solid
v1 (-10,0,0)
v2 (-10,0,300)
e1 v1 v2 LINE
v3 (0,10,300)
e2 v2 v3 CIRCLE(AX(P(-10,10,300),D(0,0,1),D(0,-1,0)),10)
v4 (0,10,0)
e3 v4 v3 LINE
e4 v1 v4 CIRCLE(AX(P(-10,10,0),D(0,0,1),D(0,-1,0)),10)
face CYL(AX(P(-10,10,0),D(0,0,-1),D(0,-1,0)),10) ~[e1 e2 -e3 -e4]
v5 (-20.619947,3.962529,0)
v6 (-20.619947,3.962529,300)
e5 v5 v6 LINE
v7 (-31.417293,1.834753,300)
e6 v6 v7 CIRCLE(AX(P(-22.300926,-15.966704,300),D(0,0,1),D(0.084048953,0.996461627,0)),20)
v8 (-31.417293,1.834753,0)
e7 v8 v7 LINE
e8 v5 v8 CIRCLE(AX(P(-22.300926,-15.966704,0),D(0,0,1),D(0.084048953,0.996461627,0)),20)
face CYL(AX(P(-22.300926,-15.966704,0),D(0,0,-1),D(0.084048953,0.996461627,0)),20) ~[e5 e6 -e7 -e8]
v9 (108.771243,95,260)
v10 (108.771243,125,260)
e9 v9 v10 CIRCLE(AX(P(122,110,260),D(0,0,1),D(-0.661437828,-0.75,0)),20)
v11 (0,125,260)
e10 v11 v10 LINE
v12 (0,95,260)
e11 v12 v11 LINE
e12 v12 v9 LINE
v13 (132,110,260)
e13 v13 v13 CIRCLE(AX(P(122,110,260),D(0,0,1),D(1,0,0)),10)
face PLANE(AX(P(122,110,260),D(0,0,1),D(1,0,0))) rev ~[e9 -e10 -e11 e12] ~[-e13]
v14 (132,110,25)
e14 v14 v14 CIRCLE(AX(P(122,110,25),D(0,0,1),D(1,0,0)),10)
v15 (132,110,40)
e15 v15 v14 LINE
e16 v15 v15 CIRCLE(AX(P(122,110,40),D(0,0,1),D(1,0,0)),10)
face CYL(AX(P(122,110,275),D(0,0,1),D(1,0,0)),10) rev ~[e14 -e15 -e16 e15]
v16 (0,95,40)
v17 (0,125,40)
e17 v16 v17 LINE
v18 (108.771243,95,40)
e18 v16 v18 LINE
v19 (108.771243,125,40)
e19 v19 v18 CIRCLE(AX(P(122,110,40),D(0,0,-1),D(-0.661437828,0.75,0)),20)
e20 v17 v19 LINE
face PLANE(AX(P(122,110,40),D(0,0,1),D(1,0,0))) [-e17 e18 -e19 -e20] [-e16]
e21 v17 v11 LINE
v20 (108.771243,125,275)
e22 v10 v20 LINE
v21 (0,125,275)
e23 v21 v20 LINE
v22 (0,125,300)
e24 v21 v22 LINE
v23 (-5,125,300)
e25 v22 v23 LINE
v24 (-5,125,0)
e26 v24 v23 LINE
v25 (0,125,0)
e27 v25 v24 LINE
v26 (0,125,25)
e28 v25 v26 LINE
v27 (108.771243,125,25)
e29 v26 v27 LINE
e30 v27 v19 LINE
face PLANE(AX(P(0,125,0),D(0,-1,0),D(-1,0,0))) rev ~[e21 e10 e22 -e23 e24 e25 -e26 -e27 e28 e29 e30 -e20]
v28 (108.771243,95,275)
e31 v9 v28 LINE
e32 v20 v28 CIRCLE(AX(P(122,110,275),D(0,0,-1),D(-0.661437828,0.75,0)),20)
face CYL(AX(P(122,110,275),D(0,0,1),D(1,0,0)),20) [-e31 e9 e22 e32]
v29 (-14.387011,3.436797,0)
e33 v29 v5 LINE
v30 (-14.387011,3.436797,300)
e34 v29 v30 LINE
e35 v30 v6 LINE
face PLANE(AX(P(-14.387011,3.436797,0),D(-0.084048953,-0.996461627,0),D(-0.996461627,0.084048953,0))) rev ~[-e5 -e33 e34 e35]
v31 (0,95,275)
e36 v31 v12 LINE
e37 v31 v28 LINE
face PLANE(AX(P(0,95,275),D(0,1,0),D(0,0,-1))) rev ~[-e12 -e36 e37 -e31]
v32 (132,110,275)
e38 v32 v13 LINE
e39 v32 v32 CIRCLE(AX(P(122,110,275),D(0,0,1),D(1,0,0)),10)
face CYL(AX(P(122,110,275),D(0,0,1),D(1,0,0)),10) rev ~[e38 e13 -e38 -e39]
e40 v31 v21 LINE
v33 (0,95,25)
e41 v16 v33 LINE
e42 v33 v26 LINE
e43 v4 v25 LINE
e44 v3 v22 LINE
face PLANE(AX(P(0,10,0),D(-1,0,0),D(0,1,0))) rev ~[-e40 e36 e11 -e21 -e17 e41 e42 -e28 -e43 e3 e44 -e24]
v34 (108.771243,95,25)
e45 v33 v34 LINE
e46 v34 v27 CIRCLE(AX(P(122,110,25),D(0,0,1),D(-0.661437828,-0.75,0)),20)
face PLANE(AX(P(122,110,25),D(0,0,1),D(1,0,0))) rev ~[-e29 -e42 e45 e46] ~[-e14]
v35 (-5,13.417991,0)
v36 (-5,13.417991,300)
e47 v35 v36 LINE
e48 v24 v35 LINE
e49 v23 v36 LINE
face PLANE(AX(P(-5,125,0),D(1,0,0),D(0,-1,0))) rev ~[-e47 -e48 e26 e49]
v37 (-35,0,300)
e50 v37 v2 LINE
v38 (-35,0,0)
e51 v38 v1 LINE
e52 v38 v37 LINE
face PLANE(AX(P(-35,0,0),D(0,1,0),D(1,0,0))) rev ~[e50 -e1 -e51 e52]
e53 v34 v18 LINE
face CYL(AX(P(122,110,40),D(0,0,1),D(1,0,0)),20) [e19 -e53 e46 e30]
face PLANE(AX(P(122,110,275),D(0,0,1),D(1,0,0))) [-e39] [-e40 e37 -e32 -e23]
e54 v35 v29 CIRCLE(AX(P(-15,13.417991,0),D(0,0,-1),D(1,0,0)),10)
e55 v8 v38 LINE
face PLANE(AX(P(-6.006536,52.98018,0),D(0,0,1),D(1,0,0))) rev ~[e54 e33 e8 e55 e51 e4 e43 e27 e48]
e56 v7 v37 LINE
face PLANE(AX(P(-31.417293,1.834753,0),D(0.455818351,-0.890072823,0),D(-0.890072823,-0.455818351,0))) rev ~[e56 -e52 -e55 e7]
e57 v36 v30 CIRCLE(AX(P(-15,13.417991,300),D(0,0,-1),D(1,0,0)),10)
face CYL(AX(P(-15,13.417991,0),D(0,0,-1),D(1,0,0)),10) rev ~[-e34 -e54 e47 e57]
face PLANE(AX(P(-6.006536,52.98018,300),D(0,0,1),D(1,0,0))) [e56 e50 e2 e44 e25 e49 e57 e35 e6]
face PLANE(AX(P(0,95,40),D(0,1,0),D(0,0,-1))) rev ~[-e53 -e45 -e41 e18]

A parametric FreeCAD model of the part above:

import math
import FreeCAD as App
import Part
import Sketcher

V = App.Vector


def add_polygon(sketch, points):
    """Adds a closed chain of lines whose ends are joined by coincident constraints."""
    first, n = sketch.GeometryCount, len(points)
    for a, b in zip(points, points[1:] + points[:1]):
        sketch.addGeometry(Part.LineSegment(App.Vector(*a, 0), App.Vector(*b, 0)), False)
    for i in range(n):
        sketch.addConstraint(Sketcher.Constraint("Coincident", first + i, 2, first + (i + 1) % n, 1))

doc = App.newDocument("Part")
body = doc.addObject("PartDesign::Body", "Body")

sketch1 = body.newObject("Sketcher::SketchObject", "Sketch")
sketch1.AttachmentSupport = (doc.getObject("XY_Plane"), [""])
sketch1.MapMode = "FlatFace"
sketch1.addGeometry([
    Part.LineSegment(V(-5, 125, 0), V(-5, 13.4, 0)),
    Part.ArcOfCircle(Part.Circle(V(-15, 13.4, 0), V(0, 0, 1), 10), math.radians(-86), math.radians(0)),
    Part.LineSegment(V(-14.4, 3.4, 0), V(-20.6, 4, 0)),
    Part.ArcOfCircle(Part.Circle(V(-22.3, -16, 0), V(0, 0, 1), 20), math.radians(85), math.radians(117)),
    Part.LineSegment(V(-31.4, 1.8, 0), V(-35, 0, 0)),
    Part.LineSegment(V(-35, 0, 0), V(-10, 0, 0)),
    Part.ArcOfCircle(Part.Circle(V(-10, 10, 0), V(0, 0, 1), 10), math.radians(-90), math.radians(0)),
    Part.LineSegment(V(0, 10, 0), V(0, 125, 0)),
    Part.LineSegment(V(0, 125, 0), V(-5, 125, 0)),
], False)
sketch1.addConstraint([
    Sketcher.Constraint("Tangent", 0, 2, 1, 2),
    Sketcher.Constraint("Coincident", 1, 1, 2, 1),
    Sketcher.Constraint("Tangent", 2, 2, 3, 1),
    Sketcher.Constraint("Tangent", 3, 2, 4, 1),
    Sketcher.Constraint("Coincident", 4, 2, 5, 1),
    Sketcher.Constraint("Tangent", 5, 2, 6, 1),
    Sketcher.Constraint("Tangent", 6, 2, 7, 1),
    Sketcher.Constraint("Coincident", 7, 2, 8, 1),
    Sketcher.Constraint("Coincident", 8, 2, 0, 1),
    Sketcher.Constraint("Vertical", 0),
    Sketcher.Constraint("Horizontal", 5),
    Sketcher.Constraint("Vertical", 7),
    Sketcher.Constraint("Horizontal", 8),
    Sketcher.Constraint("Equal", 1, 6),
    Sketcher.Constraint("PointOnObject", 4, 2, -1),
    Sketcher.Constraint("PointOnObject", 6, 2, -2),
    Sketcher.Constraint("Radius", 1, 10.0),
    Sketcher.Constraint("Radius", 3, 20.0),
    Sketcher.Constraint("DistanceX", 5, 1, 5, 2, 25.0),
    Sketcher.Constraint("DistanceX", 8, 2, 8, 1, 5.0),
    Sketcher.Constraint("DistanceY", 7, 1, 7, 2, 115.0),
    Sketcher.Constraint("DistanceY", 0, 2, 0, 1, 111.582009),
    Sketcher.Constraint("DistanceY", 3, 3, 1, 1, 19.403501),
    Sketcher.Constraint("Distance", 2, 6.255069),
    Sketcher.Constraint("DistanceX", 1, 1, -1, 1, 14.387011),
])
pad1 = body.newObject("PartDesign::Pad", "Pad")
pad1.Profile = sketch1
pad1.Length = 300

sketch2 = body.newObject("Sketcher::SketchObject", "Sketch001")
sketch2.AttachmentSupport = (doc.getObject("YZ_Plane"), [""])
sketch2.MapMode = "FlatFace"
add_polygon(sketch2, [(125, 275), (95, 275), (95, 260), (125, 260)])
add_polygon(sketch2, [(125, 40), (95, 40), (95, 25), (125, 25)])
sketch2.addConstraint([
    Sketcher.Constraint("Horizontal", 0),
    Sketcher.Constraint("Vertical", 1),
    Sketcher.Constraint("Horizontal", 2),
    Sketcher.Constraint("Vertical", 3),
    Sketcher.Constraint("Horizontal", 4),
    Sketcher.Constraint("Vertical", 5),
    Sketcher.Constraint("Horizontal", 6),
    Sketcher.Constraint("Vertical", 7),
    Sketcher.Constraint("Vertical", 1, 2, 4, 2),
    Sketcher.Constraint("Vertical", 3, 2, 6, 2),
    Sketcher.Constraint("Equal", 3, 5),
    Sketcher.Constraint("DistanceX", 0, 2, 0, 1, 30.0),
    Sketcher.Constraint("DistanceY", 1, 2, 1, 1, 15.0),
    Sketcher.Constraint("DistanceX", -1, 1, 0, 2, 95.0),
    Sketcher.Constraint("DistanceY", -1, 1, 0, 2, 275.0),
    Sketcher.Constraint("DistanceY", -1, 1, 4, 2, 40.0),
])
pad2 = body.newObject("PartDesign::Pad", "Pad001")
pad2.Profile = sketch2
pad2.Length = 115

sketch3 = body.newObject("Sketcher::SketchObject", "Sketch002")
sketch3.AttachmentSupport = (doc.getObject("XY_Plane"), [""])
sketch3.MapMode = "FlatFace"
sketch3.AttachmentOffset = App.Placement(V(0, 0, 275), App.Rotation())
sketch3.addGeometry(Part.Circle(V(122, 110, 0), V(0, 0, 1), 20), False)
sketch3.addConstraint([
    Sketcher.Constraint("Diameter", 0, 40.0),
    Sketcher.Constraint("DistanceX", -1, 1, 0, 3, 122.0),
    Sketcher.Constraint("DistanceY", -1, 1, 0, 3, 110.0),
])
pad3 = body.newObject("PartDesign::Pad", "Pad002")
pad3.Profile = sketch3
pad3.Length = 15
pad3.Reversed = True

sketch4 = body.newObject("Sketcher::SketchObject", "Sketch003")
sketch4.AttachmentSupport = (doc.getObject("XY_Plane"), [""])
sketch4.MapMode = "FlatFace"
sketch4.AttachmentOffset = App.Placement(V(0, 0, 40), App.Rotation())
sketch4.addGeometry(Part.Circle(V(122, 110, 0), V(0, 0, 1), 20), False)
sketch4.addConstraint([
    Sketcher.Constraint("Diameter", 0, 40.0),
    Sketcher.Constraint("DistanceX", -1, 1, 0, 3, 122.0),
    Sketcher.Constraint("DistanceY", -1, 1, 0, 3, 110.0),
])
pad4 = body.newObject("PartDesign::Pad", "Pad003")
pad4.Profile = sketch4
pad4.Length = 15
pad4.Reversed = True

sketch5 = body.newObject("Sketcher::SketchObject", "Sketch004")
sketch5.AttachmentSupport = (doc.getObject("XY_Plane"), [""])
sketch5.MapMode = "FlatFace"
sketch5.AttachmentOffset = App.Placement(V(0, 0, 275), App.Rotation())
sketch5.addGeometry(Part.Circle(V(122, 110, 0), V(0, 0, 1), 10), False)
sketch5.addConstraint([
    Sketcher.Constraint("Diameter", 0, 20.0),
    Sketcher.Constraint("DistanceX", -1, 1, 0, 3, 122.0),
    Sketcher.Constraint("DistanceY", -1, 1, 0, 3, 110.0),
])
pocket1 = body.newObject("PartDesign::Pocket", "Pocket")
pocket1.Profile = sketch5
pocket1.Type = "ThroughAll"

doc.recompute()
